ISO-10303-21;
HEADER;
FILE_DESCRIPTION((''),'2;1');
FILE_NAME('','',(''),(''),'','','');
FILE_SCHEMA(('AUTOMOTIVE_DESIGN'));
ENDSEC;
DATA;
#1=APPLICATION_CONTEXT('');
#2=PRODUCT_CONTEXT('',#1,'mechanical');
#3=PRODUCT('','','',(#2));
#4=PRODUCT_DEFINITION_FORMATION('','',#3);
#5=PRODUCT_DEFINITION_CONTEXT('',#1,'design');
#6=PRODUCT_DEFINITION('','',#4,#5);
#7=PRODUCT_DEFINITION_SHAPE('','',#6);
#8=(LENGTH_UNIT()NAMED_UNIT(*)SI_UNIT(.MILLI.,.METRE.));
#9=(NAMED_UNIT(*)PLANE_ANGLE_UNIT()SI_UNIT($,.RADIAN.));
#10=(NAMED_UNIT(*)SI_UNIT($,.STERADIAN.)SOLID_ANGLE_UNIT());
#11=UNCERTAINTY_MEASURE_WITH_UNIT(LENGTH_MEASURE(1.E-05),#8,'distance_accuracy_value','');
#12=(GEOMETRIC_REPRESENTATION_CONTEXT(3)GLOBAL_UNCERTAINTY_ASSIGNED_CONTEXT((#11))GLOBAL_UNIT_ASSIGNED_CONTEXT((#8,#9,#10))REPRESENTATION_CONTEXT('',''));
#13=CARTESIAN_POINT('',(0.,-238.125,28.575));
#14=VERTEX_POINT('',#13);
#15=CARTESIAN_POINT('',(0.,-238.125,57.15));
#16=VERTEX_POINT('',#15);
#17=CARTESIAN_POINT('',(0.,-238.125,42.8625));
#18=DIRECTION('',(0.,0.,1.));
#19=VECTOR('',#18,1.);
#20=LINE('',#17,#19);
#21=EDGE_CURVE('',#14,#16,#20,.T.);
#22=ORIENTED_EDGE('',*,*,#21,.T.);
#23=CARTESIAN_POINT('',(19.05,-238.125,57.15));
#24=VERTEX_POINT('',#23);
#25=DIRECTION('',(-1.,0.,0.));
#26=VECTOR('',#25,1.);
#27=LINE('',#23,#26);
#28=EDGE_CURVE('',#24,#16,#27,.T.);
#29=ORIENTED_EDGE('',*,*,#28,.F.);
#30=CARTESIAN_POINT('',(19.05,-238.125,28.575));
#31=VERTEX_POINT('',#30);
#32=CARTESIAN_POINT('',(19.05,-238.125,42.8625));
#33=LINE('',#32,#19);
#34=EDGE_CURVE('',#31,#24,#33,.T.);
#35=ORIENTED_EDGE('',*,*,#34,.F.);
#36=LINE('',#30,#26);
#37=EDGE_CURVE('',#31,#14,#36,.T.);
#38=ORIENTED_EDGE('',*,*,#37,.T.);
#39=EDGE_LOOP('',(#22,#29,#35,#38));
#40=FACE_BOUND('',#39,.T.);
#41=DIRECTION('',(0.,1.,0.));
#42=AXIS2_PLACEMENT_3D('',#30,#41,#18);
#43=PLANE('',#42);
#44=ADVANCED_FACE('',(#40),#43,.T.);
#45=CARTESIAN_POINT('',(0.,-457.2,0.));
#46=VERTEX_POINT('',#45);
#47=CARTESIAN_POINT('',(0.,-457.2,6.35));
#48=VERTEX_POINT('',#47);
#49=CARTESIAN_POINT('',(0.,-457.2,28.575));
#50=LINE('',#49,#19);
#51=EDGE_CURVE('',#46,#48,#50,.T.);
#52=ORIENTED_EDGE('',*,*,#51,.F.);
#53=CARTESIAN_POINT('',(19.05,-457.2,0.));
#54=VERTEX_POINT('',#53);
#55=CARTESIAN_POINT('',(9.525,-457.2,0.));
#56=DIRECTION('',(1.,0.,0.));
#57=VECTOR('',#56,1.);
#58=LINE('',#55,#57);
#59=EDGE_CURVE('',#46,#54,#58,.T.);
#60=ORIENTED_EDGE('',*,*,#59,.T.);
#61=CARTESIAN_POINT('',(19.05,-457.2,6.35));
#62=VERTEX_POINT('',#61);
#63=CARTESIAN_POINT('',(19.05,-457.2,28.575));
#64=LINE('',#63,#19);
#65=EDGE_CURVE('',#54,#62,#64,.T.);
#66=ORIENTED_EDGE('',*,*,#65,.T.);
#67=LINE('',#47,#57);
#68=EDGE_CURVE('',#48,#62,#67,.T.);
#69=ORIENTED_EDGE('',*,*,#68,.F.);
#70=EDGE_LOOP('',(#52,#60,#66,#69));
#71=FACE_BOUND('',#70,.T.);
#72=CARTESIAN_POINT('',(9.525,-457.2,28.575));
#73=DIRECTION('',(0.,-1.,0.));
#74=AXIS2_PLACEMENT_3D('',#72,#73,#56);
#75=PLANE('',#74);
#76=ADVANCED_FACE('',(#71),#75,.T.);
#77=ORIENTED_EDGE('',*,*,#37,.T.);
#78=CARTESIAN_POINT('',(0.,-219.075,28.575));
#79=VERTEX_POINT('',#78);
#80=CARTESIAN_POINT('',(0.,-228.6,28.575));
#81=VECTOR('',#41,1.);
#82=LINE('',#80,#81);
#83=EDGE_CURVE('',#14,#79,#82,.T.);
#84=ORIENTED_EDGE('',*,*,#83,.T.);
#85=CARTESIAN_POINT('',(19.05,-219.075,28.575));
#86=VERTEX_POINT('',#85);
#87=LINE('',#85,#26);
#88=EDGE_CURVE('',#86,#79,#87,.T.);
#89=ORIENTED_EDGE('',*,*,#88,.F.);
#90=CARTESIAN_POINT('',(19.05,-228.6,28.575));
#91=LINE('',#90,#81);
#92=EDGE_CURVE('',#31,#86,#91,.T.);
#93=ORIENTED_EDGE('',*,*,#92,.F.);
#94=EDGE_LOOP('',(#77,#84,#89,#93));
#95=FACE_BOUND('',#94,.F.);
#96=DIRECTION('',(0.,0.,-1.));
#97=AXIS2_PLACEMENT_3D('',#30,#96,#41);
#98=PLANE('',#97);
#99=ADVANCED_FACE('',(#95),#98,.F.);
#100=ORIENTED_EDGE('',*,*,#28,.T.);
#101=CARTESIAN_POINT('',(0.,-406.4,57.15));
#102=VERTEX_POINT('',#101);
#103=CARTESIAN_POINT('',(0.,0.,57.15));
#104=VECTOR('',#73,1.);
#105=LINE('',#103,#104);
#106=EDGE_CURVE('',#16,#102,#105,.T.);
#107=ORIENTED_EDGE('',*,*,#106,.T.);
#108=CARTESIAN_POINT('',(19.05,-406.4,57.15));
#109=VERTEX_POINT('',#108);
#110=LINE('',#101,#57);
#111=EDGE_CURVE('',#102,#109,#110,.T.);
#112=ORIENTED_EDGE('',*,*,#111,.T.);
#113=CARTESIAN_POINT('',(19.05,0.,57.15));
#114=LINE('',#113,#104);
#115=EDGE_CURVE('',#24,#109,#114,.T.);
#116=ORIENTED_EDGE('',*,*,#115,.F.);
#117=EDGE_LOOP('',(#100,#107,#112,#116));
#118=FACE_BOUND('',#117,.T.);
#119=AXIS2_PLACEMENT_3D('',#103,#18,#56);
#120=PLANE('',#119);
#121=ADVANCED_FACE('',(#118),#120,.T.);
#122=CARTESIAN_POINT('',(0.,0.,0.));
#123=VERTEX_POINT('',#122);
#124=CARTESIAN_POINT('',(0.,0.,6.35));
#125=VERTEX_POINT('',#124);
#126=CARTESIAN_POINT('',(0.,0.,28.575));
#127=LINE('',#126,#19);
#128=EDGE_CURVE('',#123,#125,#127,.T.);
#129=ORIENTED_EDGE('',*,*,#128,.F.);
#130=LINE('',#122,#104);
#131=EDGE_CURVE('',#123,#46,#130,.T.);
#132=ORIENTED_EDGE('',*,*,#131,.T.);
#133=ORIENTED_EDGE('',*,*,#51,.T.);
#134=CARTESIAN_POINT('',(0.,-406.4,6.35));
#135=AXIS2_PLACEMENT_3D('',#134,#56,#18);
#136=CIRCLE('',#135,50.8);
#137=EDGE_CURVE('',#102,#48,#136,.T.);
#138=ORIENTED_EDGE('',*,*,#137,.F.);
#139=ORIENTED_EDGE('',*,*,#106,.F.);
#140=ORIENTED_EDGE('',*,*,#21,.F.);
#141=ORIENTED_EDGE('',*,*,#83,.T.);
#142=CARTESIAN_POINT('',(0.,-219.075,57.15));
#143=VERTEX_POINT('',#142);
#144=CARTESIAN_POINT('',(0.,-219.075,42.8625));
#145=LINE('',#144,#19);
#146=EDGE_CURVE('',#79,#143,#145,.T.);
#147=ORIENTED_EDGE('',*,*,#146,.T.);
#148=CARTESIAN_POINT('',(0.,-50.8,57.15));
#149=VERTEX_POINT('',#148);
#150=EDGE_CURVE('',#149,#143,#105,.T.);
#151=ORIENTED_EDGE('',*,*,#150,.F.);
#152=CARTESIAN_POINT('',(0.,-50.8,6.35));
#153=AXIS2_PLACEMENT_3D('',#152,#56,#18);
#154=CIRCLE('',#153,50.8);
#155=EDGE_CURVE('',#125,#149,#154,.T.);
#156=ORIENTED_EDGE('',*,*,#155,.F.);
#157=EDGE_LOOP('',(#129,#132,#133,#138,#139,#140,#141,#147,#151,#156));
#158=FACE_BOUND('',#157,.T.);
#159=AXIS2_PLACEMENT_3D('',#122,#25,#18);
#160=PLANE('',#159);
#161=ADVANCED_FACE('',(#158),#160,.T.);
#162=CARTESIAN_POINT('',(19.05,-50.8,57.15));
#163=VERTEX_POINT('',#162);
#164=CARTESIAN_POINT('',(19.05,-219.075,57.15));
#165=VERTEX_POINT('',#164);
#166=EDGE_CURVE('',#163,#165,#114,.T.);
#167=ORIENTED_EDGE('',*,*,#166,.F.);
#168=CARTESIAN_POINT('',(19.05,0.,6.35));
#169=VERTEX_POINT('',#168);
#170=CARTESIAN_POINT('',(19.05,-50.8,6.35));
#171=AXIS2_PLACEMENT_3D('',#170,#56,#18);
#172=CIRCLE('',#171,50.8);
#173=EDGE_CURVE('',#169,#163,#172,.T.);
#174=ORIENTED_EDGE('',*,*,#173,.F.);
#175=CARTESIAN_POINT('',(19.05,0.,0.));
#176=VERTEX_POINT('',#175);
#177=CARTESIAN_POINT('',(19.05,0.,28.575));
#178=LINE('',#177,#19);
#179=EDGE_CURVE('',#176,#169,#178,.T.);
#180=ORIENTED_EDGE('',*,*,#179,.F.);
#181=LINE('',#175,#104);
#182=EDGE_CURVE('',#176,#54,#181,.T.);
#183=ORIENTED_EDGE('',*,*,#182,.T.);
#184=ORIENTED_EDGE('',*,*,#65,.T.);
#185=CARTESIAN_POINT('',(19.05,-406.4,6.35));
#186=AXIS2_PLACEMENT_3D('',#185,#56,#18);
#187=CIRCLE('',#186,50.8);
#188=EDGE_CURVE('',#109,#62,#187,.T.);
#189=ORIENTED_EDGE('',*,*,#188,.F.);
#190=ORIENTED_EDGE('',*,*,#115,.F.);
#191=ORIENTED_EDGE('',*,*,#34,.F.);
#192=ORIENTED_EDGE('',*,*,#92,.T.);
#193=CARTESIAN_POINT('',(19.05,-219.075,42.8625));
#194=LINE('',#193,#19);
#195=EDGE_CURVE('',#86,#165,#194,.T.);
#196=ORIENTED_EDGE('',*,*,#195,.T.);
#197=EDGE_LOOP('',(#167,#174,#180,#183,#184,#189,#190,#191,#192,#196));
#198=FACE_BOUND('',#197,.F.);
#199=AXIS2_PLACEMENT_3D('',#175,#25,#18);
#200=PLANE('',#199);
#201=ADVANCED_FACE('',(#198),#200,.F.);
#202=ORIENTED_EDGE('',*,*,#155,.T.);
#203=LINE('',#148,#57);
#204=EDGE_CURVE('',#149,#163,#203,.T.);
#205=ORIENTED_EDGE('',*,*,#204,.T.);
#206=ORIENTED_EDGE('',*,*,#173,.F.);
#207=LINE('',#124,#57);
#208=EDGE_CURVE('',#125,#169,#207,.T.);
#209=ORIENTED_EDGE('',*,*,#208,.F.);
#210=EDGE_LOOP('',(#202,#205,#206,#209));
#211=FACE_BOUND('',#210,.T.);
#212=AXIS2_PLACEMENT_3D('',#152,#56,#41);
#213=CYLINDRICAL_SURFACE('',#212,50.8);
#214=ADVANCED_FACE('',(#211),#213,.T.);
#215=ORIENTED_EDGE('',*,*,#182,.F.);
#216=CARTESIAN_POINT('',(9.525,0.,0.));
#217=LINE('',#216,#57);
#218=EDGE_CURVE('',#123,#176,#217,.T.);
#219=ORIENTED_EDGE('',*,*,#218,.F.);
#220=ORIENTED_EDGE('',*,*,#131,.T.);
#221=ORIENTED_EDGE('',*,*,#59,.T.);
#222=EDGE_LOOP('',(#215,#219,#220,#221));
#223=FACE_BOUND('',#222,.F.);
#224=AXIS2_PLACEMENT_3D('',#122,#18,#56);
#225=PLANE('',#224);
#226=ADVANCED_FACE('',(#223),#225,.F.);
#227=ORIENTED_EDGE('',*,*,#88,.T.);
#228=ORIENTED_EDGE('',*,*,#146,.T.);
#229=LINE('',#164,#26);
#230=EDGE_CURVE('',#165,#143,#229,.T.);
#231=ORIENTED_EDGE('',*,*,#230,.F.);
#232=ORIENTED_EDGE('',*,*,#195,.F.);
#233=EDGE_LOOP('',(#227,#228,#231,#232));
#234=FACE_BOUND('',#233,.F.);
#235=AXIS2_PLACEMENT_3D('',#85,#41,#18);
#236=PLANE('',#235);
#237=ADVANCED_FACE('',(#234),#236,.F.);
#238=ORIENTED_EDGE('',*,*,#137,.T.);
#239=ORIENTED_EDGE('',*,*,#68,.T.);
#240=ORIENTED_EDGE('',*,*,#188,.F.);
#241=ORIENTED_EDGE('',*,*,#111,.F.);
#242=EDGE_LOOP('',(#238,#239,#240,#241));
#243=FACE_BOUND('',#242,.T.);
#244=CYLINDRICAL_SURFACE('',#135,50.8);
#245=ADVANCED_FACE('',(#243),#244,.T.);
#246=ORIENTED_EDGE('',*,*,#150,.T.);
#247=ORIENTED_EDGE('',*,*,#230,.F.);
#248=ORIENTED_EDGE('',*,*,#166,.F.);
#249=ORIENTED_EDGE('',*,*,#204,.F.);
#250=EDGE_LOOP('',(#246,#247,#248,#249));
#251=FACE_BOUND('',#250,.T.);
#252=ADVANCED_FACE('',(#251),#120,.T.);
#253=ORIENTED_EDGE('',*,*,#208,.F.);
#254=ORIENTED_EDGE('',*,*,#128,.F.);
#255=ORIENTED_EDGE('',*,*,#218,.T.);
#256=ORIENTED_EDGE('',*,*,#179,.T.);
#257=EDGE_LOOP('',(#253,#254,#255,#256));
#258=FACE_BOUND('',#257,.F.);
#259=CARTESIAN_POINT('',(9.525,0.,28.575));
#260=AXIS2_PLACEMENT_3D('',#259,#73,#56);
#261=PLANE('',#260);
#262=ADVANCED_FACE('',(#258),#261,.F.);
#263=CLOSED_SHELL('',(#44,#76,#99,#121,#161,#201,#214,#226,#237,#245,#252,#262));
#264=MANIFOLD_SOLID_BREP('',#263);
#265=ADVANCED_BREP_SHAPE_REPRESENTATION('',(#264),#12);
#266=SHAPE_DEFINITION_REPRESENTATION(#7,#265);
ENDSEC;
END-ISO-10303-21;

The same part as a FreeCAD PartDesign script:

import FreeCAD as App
import Part
import Sketcher
Q = App.Units.Quantity


def edges_at(feature, points):
    """Names of the edges that pass closest to the given points."""
    edges = feature.Shape.Edges
    near = lambda p: min(range(len(edges)), key=lambda i: edges[i].distToShape(Part.Vertex(*p))[0])
    return sorted({f"Edge{near(p) + 1}" for p in points})

doc = App.newDocument("Part")
body = doc.addObject("PartDesign::Body", "Body")

# Sketch on XZ plane
sketch1 = body.newObject("Sketcher::SketchObject", "Sketch")
sketch1.AttachmentSupport = (doc.getObject("XZ_Plane"), [""])
sketch1.MapMode = "FlatFace"
sketch1.addGeometry([
    Part.LineSegment(App.Vector(0, 57.15, 0), App.Vector(0, 0, 0)),
    Part.LineSegment(App.Vector(0, 0, 0), App.Vector(19.05, 0, 0)),
    Part.LineSegment(App.Vector(19.05, 0, 0), App.Vector(19.05, 57.15, 0)),
    Part.LineSegment(App.Vector(19.05, 57.15, 0), App.Vector(0, 57.15, 0)),
], False)
sketch1.addConstraint([
    Sketcher.Constraint("Coincident", 0, 2, 1, 1),
    Sketcher.Constraint("Coincident", 1, 2, 2, 1),
    Sketcher.Constraint("Coincident", 2, 2, 3, 1),
    Sketcher.Constraint("Coincident", 3, 2, 0, 1),
    Sketcher.Constraint("Vertical", 0),
    Sketcher.Constraint("Horizontal", 1),
    Sketcher.Constraint("Vertical", 2),
    Sketcher.Constraint("Horizontal", 3),
    Sketcher.Constraint("Coincident", 0, 2, -1, 1),
    Sketcher.Constraint("DistanceX", 1, 1, 1, 2, Q("0.75 in")),
    Sketcher.Constraint("DistanceY", 0, 2, 0, 1, Q("2.25 in")),
])
pad1 = body.newObject("PartDesign::Pad", "Pad")
pad1.Profile = sketch1
pad1.Length = Q("18 in")

# Sketch on YZ plane
sketch2 = body.newObject("Sketcher::SketchObject", "Sketch001")
sketch2.AttachmentSupport = (doc.getObject("YZ_Plane"), [""])
sketch2.MapMode = "FlatFace"
sketch2.AttachmentOffset = App.Placement(App.Vector(0, 0, 0.75 * 25.4), App.Rotation())
sketch2.addGeometry([
    Part.LineSegment(App.Vector(-238.125, 57.15, 0), App.Vector(-238.125, 28.575, 0)),
    Part.LineSegment(App.Vector(-238.125, 28.575, 0), App.Vector(-219.075, 28.575, 0)),
    Part.LineSegment(App.Vector(-219.075, 28.575, 0), App.Vector(-219.075, 57.15, 0)),
    Part.LineSegment(App.Vector(-219.075, 57.15, 0), App.Vector(-238.125, 57.15, 0)),
], False)
sketch2.addConstraint([
    Sketcher.Constraint("Coincident", 0, 2, 1, 1),
    Sketcher.Constraint("Coincident", 1, 2, 2, 1),
    Sketcher.Constraint("Coincident", 2, 2, 3, 1),
    Sketcher.Constraint("Coincident", 3, 2, 0, 1),
    Sketcher.Constraint("Vertical", 0),
    Sketcher.Constraint("Horizontal", 1),
    Sketcher.Constraint("Vertical", 2),
    Sketcher.Constraint("Horizontal", 3),
    Sketcher.Constraint("DistanceX", 1, 1, 1, 2, Q("0.75 in")),
    Sketcher.Constraint("DistanceY", 0, 2, 0, 1, Q("1.125 in")),
    Sketcher.Constraint("DistanceY", -1, 1, 2, 2, Q("2.25 in")),
    Sketcher.Constraint("DistanceX", 0, 2, -1, 1, Q("9.375 in")),
])
pocket1 = body.newObject("PartDesign::Pocket", "Pocket")
pocket1.Profile = sketch2
pocket1.Type = "ThroughAll"
doc.recompute()

fillet = body.newObject("PartDesign::Fillet", "Fillet")
fillet.Base = (pocket1, edges_at(pocket1, [(9.525, 0, 57.15), (9.525, -457.2, 57.15)]))
fillet.Radius = Q("2 in")

doc.recompute()
